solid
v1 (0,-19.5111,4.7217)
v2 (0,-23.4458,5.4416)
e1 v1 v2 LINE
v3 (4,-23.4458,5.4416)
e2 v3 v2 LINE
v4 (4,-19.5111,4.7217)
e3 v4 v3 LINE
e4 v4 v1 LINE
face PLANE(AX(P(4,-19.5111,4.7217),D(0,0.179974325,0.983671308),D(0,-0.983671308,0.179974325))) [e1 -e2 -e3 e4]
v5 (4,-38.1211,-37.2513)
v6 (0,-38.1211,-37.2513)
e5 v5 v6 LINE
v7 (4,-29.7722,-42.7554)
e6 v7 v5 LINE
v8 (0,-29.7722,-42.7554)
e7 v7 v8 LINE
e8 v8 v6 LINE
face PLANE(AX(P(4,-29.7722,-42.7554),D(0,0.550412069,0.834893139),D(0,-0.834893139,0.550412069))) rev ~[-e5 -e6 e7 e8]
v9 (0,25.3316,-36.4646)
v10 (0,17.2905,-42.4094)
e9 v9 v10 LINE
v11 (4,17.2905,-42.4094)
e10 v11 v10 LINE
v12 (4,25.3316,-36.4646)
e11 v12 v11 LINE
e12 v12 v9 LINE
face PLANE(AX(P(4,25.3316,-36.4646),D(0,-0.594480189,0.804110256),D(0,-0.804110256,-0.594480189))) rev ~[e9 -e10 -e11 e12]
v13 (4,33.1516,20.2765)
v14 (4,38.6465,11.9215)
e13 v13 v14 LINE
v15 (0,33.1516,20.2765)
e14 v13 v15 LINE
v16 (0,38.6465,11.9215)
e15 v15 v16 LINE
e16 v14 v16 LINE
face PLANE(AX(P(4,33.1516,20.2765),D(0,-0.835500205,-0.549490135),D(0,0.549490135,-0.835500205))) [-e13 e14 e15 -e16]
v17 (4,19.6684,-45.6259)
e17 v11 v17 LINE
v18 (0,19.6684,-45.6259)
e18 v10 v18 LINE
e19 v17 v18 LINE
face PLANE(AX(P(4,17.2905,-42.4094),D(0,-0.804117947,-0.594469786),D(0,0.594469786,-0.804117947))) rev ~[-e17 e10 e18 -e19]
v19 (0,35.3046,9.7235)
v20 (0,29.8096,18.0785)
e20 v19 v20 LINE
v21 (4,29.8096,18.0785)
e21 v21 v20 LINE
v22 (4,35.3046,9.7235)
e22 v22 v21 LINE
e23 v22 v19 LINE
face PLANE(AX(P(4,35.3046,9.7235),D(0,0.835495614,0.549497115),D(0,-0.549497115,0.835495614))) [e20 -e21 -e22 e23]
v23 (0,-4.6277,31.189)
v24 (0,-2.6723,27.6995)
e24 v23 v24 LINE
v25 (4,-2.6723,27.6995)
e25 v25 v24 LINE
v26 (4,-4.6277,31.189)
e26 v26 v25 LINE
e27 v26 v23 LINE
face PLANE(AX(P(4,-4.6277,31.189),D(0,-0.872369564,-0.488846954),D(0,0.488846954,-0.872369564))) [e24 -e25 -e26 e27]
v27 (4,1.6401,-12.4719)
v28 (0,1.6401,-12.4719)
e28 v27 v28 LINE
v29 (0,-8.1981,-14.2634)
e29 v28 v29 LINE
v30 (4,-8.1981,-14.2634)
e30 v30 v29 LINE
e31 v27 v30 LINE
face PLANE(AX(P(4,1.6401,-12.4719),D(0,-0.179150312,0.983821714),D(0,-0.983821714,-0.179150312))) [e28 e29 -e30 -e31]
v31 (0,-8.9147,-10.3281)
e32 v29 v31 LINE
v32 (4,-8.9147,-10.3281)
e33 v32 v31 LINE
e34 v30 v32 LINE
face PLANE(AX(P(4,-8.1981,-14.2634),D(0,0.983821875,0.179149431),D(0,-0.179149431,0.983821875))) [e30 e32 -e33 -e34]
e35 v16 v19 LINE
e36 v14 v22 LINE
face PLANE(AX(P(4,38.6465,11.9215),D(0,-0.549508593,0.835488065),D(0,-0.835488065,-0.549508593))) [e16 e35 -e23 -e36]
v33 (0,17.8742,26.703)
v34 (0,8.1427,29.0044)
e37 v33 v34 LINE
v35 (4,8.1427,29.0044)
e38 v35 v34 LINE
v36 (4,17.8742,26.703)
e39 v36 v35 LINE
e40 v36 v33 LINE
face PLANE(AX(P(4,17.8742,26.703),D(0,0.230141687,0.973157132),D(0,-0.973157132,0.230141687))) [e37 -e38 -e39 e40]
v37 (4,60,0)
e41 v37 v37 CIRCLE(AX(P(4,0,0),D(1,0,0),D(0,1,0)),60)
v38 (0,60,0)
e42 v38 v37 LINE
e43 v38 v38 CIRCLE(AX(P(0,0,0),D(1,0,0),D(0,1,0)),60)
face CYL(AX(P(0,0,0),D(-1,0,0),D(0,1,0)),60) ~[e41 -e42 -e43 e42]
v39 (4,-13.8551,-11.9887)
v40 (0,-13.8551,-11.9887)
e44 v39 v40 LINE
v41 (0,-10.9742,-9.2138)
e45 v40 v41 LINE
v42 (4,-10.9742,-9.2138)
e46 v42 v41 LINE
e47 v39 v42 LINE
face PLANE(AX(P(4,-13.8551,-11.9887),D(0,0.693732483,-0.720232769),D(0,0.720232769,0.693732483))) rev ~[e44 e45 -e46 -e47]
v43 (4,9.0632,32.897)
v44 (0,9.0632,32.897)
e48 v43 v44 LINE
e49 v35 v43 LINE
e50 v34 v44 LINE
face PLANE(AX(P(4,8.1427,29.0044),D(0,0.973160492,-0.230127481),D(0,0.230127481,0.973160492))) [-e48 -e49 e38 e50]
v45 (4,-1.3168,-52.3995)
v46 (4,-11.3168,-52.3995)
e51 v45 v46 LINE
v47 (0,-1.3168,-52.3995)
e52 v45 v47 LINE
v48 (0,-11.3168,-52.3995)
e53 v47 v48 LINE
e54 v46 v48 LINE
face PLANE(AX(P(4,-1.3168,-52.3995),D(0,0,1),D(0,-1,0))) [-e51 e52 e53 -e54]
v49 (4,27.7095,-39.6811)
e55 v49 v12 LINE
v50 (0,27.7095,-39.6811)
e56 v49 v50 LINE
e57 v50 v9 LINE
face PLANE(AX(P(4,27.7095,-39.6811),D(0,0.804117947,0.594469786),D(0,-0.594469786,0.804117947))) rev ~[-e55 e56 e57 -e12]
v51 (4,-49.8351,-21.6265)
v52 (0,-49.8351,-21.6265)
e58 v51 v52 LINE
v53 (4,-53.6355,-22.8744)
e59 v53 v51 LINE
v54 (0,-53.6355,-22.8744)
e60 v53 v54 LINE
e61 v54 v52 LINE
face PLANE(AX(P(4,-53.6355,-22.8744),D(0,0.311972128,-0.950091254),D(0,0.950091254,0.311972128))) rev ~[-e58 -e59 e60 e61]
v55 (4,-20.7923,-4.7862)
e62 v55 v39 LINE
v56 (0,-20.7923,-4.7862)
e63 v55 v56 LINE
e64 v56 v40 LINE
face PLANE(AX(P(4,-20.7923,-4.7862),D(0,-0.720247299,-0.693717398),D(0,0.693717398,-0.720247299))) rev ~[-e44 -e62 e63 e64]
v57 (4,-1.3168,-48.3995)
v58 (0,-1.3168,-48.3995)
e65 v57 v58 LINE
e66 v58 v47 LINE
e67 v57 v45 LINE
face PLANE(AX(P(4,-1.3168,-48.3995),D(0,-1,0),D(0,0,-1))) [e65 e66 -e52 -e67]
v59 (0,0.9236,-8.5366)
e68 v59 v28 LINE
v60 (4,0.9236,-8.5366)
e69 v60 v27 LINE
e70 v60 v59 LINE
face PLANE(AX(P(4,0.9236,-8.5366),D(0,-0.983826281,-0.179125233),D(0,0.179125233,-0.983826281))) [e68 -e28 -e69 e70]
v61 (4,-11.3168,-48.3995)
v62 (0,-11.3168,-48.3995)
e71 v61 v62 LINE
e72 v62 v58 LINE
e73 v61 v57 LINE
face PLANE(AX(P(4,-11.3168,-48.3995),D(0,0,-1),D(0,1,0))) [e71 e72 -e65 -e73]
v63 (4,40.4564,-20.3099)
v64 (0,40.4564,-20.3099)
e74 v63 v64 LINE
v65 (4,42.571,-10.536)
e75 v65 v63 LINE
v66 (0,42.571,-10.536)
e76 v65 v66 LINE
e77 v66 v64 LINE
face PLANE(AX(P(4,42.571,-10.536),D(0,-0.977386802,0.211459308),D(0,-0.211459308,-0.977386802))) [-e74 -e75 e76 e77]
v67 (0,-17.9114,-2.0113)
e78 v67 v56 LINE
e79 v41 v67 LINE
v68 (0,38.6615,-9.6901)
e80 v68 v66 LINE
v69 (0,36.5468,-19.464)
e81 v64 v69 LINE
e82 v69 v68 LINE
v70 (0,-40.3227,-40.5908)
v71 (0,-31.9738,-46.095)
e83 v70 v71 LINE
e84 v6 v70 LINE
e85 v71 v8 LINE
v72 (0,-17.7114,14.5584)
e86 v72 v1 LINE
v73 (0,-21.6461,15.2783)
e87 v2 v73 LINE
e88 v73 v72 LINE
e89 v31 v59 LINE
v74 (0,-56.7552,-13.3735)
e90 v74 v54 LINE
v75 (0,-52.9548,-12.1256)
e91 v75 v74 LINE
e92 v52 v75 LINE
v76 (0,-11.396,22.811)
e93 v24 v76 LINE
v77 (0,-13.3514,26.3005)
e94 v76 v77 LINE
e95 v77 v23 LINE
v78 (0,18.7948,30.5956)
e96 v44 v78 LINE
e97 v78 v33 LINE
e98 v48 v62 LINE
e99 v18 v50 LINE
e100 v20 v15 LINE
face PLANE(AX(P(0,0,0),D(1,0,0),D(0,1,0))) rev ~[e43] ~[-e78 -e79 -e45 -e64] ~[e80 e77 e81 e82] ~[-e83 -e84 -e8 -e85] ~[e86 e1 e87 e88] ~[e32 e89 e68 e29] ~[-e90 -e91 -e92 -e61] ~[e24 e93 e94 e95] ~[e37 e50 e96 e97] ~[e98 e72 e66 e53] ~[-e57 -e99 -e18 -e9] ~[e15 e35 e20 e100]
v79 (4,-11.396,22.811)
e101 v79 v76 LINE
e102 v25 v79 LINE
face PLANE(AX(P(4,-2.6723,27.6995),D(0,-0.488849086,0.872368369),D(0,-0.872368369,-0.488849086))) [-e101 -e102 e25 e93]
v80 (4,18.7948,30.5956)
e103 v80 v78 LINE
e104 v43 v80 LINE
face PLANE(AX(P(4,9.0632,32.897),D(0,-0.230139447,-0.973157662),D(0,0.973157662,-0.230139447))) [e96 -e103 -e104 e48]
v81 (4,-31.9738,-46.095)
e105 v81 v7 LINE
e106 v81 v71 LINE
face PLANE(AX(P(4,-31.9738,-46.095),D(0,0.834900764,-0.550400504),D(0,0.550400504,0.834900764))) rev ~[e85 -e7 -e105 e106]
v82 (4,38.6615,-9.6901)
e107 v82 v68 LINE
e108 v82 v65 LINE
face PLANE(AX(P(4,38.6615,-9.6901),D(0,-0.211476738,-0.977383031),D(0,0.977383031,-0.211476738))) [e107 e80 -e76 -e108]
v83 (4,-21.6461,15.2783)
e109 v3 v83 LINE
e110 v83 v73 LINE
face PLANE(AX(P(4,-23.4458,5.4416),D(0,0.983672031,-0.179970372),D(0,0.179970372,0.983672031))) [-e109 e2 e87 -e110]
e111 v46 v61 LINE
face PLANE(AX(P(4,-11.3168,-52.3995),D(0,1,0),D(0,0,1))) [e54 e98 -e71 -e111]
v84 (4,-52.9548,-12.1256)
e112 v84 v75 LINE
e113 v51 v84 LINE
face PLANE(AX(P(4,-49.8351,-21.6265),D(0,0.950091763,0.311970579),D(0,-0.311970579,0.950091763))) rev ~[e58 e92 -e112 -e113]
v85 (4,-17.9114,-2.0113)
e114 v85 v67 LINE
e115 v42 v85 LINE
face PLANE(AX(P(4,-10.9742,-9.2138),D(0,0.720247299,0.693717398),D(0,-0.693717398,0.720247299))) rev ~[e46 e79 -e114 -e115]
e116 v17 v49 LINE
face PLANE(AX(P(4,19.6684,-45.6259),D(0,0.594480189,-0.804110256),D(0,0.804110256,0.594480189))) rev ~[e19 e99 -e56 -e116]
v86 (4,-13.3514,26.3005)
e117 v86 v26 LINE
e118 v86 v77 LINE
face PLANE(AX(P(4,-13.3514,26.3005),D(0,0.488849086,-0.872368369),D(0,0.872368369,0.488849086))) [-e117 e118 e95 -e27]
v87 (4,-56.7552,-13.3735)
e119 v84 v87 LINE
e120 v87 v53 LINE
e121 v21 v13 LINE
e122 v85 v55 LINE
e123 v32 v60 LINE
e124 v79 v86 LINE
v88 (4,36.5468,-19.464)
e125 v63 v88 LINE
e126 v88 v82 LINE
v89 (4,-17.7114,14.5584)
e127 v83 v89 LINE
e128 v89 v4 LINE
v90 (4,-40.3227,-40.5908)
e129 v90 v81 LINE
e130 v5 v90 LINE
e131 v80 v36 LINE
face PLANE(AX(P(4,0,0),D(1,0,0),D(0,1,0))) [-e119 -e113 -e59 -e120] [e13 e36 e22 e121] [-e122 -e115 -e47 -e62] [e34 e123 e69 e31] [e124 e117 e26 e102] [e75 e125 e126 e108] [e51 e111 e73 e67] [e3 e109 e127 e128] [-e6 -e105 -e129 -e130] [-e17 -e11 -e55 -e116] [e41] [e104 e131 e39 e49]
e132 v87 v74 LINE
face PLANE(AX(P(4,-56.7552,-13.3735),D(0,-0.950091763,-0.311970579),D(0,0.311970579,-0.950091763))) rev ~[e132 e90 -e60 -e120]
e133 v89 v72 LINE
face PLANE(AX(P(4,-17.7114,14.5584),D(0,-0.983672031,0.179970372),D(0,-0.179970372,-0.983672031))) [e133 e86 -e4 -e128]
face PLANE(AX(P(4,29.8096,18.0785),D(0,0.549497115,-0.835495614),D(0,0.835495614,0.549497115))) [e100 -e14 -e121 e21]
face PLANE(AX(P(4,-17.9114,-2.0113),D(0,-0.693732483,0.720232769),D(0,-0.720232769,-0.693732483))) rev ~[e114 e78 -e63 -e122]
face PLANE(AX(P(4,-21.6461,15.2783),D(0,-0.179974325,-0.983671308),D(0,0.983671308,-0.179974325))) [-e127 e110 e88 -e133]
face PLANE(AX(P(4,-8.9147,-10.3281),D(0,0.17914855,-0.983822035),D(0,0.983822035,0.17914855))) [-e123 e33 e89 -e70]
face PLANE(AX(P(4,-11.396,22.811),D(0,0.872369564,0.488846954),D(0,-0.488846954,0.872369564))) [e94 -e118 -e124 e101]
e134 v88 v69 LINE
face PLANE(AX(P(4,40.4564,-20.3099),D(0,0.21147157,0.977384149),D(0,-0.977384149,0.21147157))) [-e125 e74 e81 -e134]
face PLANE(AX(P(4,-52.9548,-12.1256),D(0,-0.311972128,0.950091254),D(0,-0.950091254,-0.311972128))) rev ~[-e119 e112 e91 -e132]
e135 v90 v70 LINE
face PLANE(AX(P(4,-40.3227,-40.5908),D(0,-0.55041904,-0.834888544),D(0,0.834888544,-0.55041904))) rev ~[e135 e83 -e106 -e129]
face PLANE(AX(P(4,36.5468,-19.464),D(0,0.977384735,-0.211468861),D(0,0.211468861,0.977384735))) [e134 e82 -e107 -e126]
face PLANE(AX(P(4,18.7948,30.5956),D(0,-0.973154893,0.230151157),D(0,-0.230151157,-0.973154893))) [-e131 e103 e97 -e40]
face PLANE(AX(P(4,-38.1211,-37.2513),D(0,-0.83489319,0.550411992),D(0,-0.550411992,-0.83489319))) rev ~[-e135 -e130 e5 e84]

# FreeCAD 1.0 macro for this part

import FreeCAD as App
import Part
import Sketcher

V = App.Vector
Q = App.Units.Quantity


def add_polygon(sketch, points):
    """Adds a closed chain of lines whose ends are joined by coincident constraints."""
    first, n = sketch.GeometryCount, len(points)
    for a, b in zip(points, points[1:] + points[:1]):
        sketch.addGeometry(Part.LineSegment(App.Vector(*a, 0), App.Vector(*b, 0)), False)
    for i in range(n):
        sketch.addConstraint(Sketcher.Constraint("Coincident", first + i, 2, first + (i + 1) % n, 1))

doc = App.newDocument("Part")
body = doc.addObject("PartDesign::Body", "Body")

# Sketch on YZ plane
sketch1 = body.newObject("Sketcher::SketchObject", "Sketch")
sketch1.AttachmentSupport = (doc.getObject("YZ_Plane"), [""])
sketch1.MapMode = "FlatFace"
sketch1.addGeometry(Part.Circle(V(0, 0, 0), V(0, 0, 1), 60), False)
sketch1.addConstraint([
    Sketcher.Constraint("Coincident", 0, 3, -1, 1),
    Sketcher.Constraint("Diameter", 0, 120.0),
])
pad1 = body.newObject("PartDesign::Pad", "Pad")
pad1.Profile = sketch1
pad1.Length = 4

# Sketch on YZ plane
sketch2 = body.newObject("Sketcher::SketchObject", "Sketch001")
sketch2.AttachmentSupport = (doc.getObject("YZ_Plane"), [""])
sketch2.MapMode = "FlatFace"
sketch2.AttachmentOffset = App.Placement(V(0, 0, 4), App.Rotation())
add_polygon(sketch2, [(-38.1211, -37.2513), (-40.3227, -40.5908), (-31.9738, -46.095), (-29.7722, -42.7554)])  # lines 0-3
add_polygon(sketch2, [(-1.3168, -48.3995), (-11.3168, -48.3995), (-11.3168, -52.3995), (-1.3168, -52.3995)])  # lines 4-7
add_polygon(sketch2, [(27.7095, -39.6811), (25.3316, -36.4646), (17.2905, -42.4094), (19.6684, -45.6259)])  # lines 8-11
add_polygon(sketch2, [(40.4564, -20.3099), (42.571, -10.536), (38.6615, -9.6901), (36.5468, -19.464)])  # lines 12-15
add_polygon(sketch2, [(38.6465, 11.9215), (33.1516, 20.2765), (29.8096, 18.0785), (35.3046, 9.7235)])  # lines 16-19
add_polygon(sketch2, [(18.7948, 30.5956), (9.0632, 32.897), (8.1427, 29.0044), (17.8742, 26.703)])  # lines 20-23
add_polygon(sketch2, [(-11.396, 22.811), (-2.6723, 27.6995), (-4.6277, 31.189), (-13.3514, 26.3005)])  # lines 24-27
add_polygon(sketch2, [(-19.5111, 4.7217), (-17.7114, 14.5584), (-21.6461, 15.2783), (-23.4458, 5.4416)])  # lines 28-31
add_polygon(sketch2, [(-13.8551, -11.9887), (-10.9742, -9.2138), (-17.9114, -2.0113), (-20.7923, -4.7862)])  # lines 32-35
add_polygon(sketch2, [(0.9236, -8.5366), (-8.9147, -10.3281), (-8.1981, -14.2634), (1.6401, -12.4719)])  # lines 36-39
add_polygon(sketch2, [(-52.9548, -12.1256), (-56.7552, -13.3735), (-53.6355, -22.8744), (-49.8351, -21.6265)])  # lines 40-43
sketch2.addConstraint([
    Sketcher.Constraint("Horizontal", 4),
    Sketcher.Constraint("Vertical", 5),
    Sketcher.Constraint("Horizontal", 6),
    Sketcher.Constraint("Vertical", 7),
    Sketcher.Constraint("Perpendicular", 0, 1),
    Sketcher.Constraint("Perpendicular", 1, 2),
    Sketcher.Constraint("Perpendicular", 2, 3),
    Sketcher.Constraint("Perpendicular", 8, 9),
    Sketcher.Constraint("Perpendicular", 9, 10),
    Sketcher.Constraint("Perpendicular", 10, 11),
    Sketcher.Constraint("Perpendicular", 12, 13),
    Sketcher.Constraint("Perpendicular", 13, 14),
    Sketcher.Constraint("Perpendicular", 14, 15),
    Sketcher.Constraint("Perpendicular", 16, 17),
    Sketcher.Constraint("Perpendicular", 17, 18),
    Sketcher.Constraint("Perpendicular", 18, 19),
    Sketcher.Constraint("Perpendicular", 20, 21),
    Sketcher.Constraint("Perpendicular", 21, 22),
    Sketcher.Constraint("Perpendicular", 22, 23),
    Sketcher.Constraint("Perpendicular", 24, 25),
    Sketcher.Constraint("Perpendicular", 25, 26),
    Sketcher.Constraint("Perpendicular", 26, 27),
    Sketcher.Constraint("Perpendicular", 28, 29),
    Sketcher.Constraint("Perpendicular", 29, 30),
    Sketcher.Constraint("Perpendicular", 30, 31),
    Sketcher.Constraint("Perpendicular", 32, 33),
    Sketcher.Constraint("Perpendicular", 33, 34),
    Sketcher.Constraint("Perpendicular", 34, 35),
    Sketcher.Constraint("Perpendicular", 36, 37),
    Sketcher.Constraint("Perpendicular", 37, 38),
    Sketcher.Constraint("Perpendicular", 38, 39),
    Sketcher.Constraint("Perpendicular", 40, 41),
    Sketcher.Constraint("Perpendicular", 41, 42),
    Sketcher.Constraint("Perpendicular", 42, 43),
    Sketcher.Constraint("Equal", 2, 8),
    Sketcher.Constraint("Equal", 3, 9),
    Sketcher.Constraint("Equal", 11, 12),
    Sketcher.Constraint("Equal", 10, 13),
    Sketcher.Constraint("Equal", 14, 16),
    Sketcher.Constraint("Equal", 15, 17),
    Sketcher.Constraint("Equal", 18, 20),
    Sketcher.Constraint("Equal", 19, 21),
    Sketcher.Constraint("Equal", 22, 24),
    Sketcher.Constraint("Equal", 23, 25),
    Sketcher.Constraint("Equal", 26, 28),
    Sketcher.Constraint("Equal", 27, 29),
    Sketcher.Constraint("Equal", 31, 32),
    Sketcher.Constraint("Equal", 30, 33),
    Sketcher.Constraint("Equal", 35, 36),
    Sketcher.Constraint("Equal", 34, 37),
    Sketcher.Constraint("Equal", 39, 40),
    Sketcher.Constraint("Equal", 38, 41),
    Sketcher.Constraint("DistanceX", 4, 2, 4, 1, 10.0),
    Sketcher.Constraint("DistanceY", 5, 2, 5, 1, 4.0),
    Sketcher.Constraint("Distance", 0, 4.0),
    Sketcher.Constraint("Distance", 1, 10.0),
    Sketcher.Constraint("Angle", 13, Q("167.791 deg")),
    Sketcher.Constraint("Angle", 36, Q("-169.6798 deg")),
    Sketcher.Constraint("DistanceX", 33, 2, 28, 2, 0.2),
    Sketcher.Constraint("DistanceY", 13, 2, -1, 1, 9.69),
    Sketcher.Constraint("DistanceX", -1, 1, 38, 2, 1.64),
    Sketcher.Constraint("DistanceY", 7, 2, 9, 2, 5.99),
    Sketcher.Constraint("DistanceY", 10, 2, 12, 2, 35.09),
    Sketcher.Constraint("DistanceX", 8, 2, 13, 2, 13.33),
    Sketcher.Constraint("DistanceX", 16, 2, 13, 2, 5.51),
    Sketcher.Constraint("DistanceX", 28, 2, 26, 2, 4.36),
    Sketcher.Constraint("DistanceY", 28, 2, 29, 2, 0.72),
    Sketcher.Constraint("DistanceX", 29, 2, 27, 2, 10.25),
    Sketcher.Constraint("DistanceX", 40, 2, 42, 2, 6.92),
    Sketcher.Constraint("DistanceY", 1, 2, -1, 1, 46.095),
    Sketcher.Constraint("DistanceX", 3, 2, -1, 1, 38.121),
    Sketcher.Constraint("DistanceY", 11, 2, -1, 1, 39.681),
    Sketcher.Constraint("DistanceX", -1, 1, 12, 2, 42.571),
    Sketcher.Constraint("DistanceY", -1, 1, 20, 2, 32.897),
    Sketcher.Constraint("DistanceY", -1, 1, 22, 2, 26.703),
    Sketcher.Constraint("DistanceY", -1, 1, 25, 2, 31.189),
    Sketcher.Constraint("DistanceX", 27, 2, -1, 1, 11.396),
    Sketcher.Constraint("DistanceX", 35, 2, -1, 1, 13.855),
    Sketcher.Constraint("DistanceY", 36, 2, -1, 1, 10.328),
    Sketcher.Constraint("DistanceX", 42, 2, -1, 1, 49.835),
    Sketcher.Constraint("DistanceX", 0, 2, 1, 2, 8.349),
    Sketcher.Constraint("DistanceX", 1, 2, 4, 2, 20.657),
    Sketcher.Constraint("DistanceY", 8, 2, 16, 2, 56.741),
    Sketcher.Constraint("DistanceX", 17, 2, 16, 2, 3.342),
    Sketcher.Constraint("DistanceX", 21, 2, 17, 2, 21.667),
    Sketcher.Constraint("DistanceY", 28, 2, 26, 2, 11.742),
    Sketcher.Constraint("DistanceY", 32, 2, 29, 2, 24.492),
    Sketcher.Constraint("DistanceY", 40, 2, 30, 2, 18.815),
])
pocket1 = body.newObject("PartDesign::Pocket", "Pocket")
pocket1.Profile = sketch2
pocket1.Type = "ThroughAll"

doc.recompute()
